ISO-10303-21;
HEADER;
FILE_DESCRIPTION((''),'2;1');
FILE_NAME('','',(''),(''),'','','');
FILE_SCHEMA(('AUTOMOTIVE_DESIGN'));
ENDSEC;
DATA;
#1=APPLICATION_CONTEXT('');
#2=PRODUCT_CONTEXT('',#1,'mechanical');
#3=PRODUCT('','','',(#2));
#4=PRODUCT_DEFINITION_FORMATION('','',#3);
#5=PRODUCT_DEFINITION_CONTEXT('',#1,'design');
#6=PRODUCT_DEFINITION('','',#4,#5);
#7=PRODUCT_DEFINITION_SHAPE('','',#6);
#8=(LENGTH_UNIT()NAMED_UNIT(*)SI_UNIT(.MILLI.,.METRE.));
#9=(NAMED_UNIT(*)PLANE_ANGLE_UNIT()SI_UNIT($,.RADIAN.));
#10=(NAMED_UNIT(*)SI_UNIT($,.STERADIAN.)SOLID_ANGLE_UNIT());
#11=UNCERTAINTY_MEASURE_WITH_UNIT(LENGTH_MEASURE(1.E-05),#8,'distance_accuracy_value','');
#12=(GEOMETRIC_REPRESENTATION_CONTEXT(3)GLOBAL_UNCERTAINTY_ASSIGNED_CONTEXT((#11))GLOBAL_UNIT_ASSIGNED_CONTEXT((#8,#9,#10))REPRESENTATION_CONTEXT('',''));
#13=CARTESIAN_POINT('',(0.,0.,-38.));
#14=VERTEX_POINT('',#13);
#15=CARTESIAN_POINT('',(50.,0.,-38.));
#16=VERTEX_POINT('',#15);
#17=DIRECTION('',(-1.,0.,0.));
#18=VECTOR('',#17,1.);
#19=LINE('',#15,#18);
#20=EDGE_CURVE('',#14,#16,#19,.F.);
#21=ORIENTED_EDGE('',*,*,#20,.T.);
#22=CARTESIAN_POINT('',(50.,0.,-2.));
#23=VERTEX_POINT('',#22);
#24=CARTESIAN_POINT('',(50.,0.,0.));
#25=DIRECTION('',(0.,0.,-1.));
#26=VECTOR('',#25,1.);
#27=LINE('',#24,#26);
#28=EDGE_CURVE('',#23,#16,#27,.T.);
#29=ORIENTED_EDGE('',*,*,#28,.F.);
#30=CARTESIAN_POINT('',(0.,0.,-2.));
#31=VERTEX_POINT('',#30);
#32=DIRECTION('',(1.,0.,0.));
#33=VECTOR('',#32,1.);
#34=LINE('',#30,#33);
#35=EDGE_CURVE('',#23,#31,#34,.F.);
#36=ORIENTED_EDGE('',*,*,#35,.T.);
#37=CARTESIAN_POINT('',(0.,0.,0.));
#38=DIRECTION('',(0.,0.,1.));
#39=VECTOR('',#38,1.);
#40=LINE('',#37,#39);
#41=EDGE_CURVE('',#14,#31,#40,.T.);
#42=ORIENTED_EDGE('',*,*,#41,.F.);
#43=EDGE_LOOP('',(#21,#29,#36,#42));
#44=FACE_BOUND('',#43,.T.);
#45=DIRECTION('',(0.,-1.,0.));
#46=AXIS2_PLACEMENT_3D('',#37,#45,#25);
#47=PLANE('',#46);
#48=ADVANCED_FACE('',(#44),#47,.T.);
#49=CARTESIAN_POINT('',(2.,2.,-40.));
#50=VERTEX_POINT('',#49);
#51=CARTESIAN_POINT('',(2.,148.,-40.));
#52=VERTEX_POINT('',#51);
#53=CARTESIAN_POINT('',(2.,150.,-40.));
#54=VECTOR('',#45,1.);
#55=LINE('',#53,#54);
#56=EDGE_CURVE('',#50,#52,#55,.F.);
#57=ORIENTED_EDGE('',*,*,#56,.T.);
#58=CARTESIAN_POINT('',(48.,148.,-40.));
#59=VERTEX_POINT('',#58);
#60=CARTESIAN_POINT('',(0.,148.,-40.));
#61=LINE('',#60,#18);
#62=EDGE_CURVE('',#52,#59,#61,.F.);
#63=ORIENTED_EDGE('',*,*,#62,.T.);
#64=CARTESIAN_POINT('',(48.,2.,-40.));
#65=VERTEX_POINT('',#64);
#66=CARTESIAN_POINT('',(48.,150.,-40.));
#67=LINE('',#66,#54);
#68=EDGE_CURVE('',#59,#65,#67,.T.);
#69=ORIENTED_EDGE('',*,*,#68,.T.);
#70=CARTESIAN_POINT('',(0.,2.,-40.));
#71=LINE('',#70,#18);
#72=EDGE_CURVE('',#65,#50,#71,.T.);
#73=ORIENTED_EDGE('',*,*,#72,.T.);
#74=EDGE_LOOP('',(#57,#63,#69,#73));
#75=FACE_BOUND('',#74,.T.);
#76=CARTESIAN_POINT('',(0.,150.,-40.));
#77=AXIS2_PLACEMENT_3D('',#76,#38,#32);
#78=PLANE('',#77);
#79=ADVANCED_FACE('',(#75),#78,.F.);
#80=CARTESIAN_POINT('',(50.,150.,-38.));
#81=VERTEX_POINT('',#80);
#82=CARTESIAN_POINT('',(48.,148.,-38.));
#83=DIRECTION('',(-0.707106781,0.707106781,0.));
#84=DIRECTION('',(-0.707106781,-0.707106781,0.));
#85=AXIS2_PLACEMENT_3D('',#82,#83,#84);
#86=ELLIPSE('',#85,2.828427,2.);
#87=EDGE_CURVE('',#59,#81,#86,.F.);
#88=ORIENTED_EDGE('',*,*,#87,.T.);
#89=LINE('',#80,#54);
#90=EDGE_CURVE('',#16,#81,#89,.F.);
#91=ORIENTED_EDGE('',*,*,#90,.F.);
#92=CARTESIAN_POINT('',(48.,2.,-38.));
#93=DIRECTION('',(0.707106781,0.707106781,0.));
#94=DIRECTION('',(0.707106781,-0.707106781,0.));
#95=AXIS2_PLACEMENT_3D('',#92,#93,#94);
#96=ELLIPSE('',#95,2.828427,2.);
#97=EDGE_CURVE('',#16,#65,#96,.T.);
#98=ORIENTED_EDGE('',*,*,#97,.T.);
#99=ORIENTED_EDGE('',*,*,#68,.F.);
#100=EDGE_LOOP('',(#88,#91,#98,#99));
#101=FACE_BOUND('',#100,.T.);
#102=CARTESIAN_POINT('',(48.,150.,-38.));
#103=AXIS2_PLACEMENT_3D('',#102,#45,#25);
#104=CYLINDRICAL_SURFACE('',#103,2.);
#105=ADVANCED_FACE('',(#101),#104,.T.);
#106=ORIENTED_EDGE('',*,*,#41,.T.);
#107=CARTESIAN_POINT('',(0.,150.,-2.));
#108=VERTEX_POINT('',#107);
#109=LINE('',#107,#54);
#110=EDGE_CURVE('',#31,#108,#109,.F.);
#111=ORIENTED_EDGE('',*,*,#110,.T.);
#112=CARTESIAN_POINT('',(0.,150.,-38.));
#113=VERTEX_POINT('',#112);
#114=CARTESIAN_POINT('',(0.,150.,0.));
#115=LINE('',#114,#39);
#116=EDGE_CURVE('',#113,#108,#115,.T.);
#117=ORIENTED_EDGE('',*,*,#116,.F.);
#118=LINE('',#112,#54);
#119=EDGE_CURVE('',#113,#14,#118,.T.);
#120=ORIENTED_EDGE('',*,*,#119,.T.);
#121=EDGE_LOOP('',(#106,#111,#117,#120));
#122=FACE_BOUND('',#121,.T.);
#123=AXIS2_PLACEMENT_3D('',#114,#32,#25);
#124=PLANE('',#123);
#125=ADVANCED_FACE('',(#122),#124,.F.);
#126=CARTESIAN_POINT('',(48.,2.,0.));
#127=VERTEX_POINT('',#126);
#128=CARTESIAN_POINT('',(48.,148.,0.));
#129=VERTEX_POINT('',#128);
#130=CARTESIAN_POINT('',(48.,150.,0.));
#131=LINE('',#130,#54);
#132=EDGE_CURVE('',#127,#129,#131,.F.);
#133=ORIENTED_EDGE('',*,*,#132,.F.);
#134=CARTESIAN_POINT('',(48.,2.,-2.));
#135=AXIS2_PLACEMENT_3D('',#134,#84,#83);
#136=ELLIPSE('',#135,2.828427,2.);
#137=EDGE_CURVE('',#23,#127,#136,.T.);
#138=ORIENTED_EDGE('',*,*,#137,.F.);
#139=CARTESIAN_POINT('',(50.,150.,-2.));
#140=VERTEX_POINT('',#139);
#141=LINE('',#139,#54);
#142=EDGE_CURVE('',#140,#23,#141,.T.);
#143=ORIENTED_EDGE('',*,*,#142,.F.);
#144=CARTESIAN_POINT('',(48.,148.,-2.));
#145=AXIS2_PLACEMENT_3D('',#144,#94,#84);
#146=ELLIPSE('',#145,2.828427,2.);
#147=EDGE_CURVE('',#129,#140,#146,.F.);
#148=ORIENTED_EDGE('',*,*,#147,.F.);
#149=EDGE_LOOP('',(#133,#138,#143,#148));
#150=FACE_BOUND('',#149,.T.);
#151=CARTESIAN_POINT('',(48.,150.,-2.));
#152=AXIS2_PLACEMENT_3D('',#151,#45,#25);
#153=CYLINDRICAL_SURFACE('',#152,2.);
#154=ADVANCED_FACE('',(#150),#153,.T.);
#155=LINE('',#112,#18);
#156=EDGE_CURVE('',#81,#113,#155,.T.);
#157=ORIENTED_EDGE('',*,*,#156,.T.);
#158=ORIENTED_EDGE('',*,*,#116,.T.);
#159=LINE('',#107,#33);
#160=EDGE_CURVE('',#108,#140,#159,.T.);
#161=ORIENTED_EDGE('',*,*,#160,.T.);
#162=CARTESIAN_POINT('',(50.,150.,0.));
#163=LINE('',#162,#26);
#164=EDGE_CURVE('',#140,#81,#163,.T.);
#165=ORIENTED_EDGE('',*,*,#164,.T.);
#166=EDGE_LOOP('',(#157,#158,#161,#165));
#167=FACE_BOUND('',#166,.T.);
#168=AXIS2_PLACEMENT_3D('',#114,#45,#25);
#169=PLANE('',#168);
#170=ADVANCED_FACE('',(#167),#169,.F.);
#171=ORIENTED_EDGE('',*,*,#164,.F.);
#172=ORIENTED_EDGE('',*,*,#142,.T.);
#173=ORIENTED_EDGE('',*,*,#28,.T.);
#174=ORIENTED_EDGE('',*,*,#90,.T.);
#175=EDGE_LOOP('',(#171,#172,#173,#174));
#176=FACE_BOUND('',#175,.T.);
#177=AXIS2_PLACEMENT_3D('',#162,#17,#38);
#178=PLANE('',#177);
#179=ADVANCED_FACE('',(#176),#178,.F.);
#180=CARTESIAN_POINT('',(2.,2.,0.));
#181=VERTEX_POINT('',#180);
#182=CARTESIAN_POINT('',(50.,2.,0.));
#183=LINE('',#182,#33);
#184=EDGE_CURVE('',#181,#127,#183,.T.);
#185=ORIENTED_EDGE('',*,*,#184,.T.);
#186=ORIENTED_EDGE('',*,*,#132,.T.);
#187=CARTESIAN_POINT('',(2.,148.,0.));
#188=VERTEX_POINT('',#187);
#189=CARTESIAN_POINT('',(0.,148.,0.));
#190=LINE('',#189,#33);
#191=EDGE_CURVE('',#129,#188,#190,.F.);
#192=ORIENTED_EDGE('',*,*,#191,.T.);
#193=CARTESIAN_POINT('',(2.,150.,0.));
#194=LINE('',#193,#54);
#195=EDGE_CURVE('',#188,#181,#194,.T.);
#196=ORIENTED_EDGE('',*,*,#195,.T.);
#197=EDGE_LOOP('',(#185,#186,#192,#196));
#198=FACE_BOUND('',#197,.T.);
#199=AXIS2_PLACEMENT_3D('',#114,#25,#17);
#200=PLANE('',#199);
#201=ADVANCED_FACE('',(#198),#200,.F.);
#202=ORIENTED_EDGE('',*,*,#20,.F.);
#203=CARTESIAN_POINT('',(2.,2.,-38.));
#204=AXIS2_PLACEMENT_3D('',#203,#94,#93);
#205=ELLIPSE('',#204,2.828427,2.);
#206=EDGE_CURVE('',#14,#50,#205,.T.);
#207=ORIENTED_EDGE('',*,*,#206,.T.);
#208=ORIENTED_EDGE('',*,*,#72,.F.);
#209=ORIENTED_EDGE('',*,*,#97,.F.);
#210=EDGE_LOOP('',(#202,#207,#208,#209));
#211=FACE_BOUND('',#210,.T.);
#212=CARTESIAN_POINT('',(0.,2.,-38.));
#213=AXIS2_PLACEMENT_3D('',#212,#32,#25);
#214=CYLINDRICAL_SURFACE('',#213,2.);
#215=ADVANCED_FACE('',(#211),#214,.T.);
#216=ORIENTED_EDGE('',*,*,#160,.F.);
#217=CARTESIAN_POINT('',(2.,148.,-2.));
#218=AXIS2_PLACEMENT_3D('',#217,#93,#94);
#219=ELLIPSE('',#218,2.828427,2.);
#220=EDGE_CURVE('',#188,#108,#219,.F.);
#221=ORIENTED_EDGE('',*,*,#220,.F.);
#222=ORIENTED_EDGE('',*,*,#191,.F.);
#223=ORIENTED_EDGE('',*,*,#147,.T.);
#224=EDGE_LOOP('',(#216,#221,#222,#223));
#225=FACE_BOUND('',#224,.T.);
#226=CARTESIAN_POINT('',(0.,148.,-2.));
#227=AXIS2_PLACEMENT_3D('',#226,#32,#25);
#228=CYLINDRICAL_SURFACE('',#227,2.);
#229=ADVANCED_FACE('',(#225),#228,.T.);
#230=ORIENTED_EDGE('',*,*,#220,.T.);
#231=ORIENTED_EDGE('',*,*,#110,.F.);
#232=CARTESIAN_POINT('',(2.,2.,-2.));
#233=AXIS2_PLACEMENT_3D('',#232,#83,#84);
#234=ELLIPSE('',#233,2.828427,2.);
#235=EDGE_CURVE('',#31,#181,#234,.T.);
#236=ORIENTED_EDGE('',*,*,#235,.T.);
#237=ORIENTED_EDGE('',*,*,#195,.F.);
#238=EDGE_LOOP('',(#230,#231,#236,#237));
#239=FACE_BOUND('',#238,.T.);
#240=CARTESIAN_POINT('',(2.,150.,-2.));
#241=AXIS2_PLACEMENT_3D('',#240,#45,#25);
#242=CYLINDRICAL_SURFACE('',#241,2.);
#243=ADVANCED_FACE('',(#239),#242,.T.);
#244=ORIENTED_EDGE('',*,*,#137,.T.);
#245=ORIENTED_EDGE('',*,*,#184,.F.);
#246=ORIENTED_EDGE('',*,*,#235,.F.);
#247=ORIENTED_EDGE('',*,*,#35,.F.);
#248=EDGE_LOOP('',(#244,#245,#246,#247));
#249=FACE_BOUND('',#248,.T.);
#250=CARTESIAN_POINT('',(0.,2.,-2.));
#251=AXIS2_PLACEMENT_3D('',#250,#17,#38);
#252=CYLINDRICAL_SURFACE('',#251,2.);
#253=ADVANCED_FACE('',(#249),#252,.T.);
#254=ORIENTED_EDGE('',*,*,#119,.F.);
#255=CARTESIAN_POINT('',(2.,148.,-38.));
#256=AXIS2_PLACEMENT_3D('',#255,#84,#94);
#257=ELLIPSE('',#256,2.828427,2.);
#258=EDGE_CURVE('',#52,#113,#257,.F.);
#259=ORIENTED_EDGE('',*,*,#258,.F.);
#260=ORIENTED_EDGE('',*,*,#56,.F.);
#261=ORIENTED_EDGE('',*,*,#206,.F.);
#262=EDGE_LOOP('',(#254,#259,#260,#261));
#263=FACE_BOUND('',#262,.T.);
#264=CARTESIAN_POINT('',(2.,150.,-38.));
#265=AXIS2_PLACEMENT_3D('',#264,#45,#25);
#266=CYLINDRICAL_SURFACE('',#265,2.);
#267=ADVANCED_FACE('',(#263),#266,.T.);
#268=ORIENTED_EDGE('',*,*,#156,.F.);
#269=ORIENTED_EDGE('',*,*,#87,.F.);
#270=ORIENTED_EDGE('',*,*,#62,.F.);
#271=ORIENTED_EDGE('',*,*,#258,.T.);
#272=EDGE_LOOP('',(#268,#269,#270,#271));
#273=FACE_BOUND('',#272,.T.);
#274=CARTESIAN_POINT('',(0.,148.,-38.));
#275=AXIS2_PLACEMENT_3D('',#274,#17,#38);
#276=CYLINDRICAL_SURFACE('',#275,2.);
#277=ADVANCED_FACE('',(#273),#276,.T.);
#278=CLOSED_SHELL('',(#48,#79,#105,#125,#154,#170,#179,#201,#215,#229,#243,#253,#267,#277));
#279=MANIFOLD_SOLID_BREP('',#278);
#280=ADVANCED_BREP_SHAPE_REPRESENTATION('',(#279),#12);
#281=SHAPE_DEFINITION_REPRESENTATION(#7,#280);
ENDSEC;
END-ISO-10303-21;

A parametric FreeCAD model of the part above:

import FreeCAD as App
import Part
import Sketcher
Q = App.Units.Quantity


def edges_at(feature, points):
    """Names of the edges that pass closest to the given points."""
    edges = feature.Shape.Edges
    near = lambda p: min(range(len(edges)), key=lambda i: edges[i].distToShape(Part.Vertex(*p))[0])
    return sorted({f"Edge{near(p) + 1}" for p in points})

doc = App.newDocument("Part")
body = doc.addObject("PartDesign::Body", "Body")

# Sketch on XZ plane
sketch1 = body.newObject("Sketcher::SketchObject", "Sketch")
sketch1.AttachmentSupport = (doc.getObject("XZ_Plane"), [""])
sketch1.MapMode = "FlatFace"
sketch1.addGeometry(Part.LineSegment(App.Vector(0, -40, 0), App.Vector(0, 0, 0)), False)
sketch1.addGeometry(Part.LineSegment(App.Vector(0, 0, 0), App.Vector(50, 0, 0)), False)
sketch1.addGeometry(Part.LineSegment(App.Vector(50, 0, 0), App.Vector(50, -40, 0)), False)
sketch1.addGeometry(Part.LineSegment(App.Vector(50, -40, 0), App.Vector(0, -40, 0)), False)
sketch1.addConstraint(Sketcher.Constraint("Coincident", 0, 2, 1, 1))
sketch1.addConstraint(Sketcher.Constraint("Coincident", 1, 2, 2, 1))
sketch1.addConstraint(Sketcher.Constraint("Coincident", 2, 2, 3, 1))
sketch1.addConstraint(Sketcher.Constraint("Coincident", 3, 2, 0, 1))
sketch1.addConstraint(Sketcher.Constraint("Vertical", 0))
sketch1.addConstraint(Sketcher.Constraint("Horizontal", 1))
sketch1.addConstraint(Sketcher.Constraint("Vertical", 2))
sketch1.addConstraint(Sketcher.Constraint("Horizontal", 3))
sketch1.addConstraint(Sketcher.Constraint("Coincident", 0, 2, -1, 1))
sketch1.addConstraint(Sketcher.Constraint("DistanceX", 1, 1, 1, 2, Q("50 mm")))
sketch1.addConstraint(Sketcher.Constraint("DistanceY", 0, 1, 0, 2, Q("40 mm")))
pad1 = body.newObject("PartDesign::Pad", "Pad")
pad1.Profile = sketch1
pad1.Length = 150
pad1.Reversed = True
doc.recompute()

fillet = body.newObject("PartDesign::Fillet", "Fillet")
fillet.Base = (pad1, edges_at(pad1, [
    (25, 150, -40),
    (25, 0, -40),
    (25, 0, 0),
    (0, 75, -40),
    (50, 75, -40),
    (50, 75, 0),
    (0, 75, 0),
    (25, 150, 0),
]))
fillet.Radius = 2

doc.recompute()
